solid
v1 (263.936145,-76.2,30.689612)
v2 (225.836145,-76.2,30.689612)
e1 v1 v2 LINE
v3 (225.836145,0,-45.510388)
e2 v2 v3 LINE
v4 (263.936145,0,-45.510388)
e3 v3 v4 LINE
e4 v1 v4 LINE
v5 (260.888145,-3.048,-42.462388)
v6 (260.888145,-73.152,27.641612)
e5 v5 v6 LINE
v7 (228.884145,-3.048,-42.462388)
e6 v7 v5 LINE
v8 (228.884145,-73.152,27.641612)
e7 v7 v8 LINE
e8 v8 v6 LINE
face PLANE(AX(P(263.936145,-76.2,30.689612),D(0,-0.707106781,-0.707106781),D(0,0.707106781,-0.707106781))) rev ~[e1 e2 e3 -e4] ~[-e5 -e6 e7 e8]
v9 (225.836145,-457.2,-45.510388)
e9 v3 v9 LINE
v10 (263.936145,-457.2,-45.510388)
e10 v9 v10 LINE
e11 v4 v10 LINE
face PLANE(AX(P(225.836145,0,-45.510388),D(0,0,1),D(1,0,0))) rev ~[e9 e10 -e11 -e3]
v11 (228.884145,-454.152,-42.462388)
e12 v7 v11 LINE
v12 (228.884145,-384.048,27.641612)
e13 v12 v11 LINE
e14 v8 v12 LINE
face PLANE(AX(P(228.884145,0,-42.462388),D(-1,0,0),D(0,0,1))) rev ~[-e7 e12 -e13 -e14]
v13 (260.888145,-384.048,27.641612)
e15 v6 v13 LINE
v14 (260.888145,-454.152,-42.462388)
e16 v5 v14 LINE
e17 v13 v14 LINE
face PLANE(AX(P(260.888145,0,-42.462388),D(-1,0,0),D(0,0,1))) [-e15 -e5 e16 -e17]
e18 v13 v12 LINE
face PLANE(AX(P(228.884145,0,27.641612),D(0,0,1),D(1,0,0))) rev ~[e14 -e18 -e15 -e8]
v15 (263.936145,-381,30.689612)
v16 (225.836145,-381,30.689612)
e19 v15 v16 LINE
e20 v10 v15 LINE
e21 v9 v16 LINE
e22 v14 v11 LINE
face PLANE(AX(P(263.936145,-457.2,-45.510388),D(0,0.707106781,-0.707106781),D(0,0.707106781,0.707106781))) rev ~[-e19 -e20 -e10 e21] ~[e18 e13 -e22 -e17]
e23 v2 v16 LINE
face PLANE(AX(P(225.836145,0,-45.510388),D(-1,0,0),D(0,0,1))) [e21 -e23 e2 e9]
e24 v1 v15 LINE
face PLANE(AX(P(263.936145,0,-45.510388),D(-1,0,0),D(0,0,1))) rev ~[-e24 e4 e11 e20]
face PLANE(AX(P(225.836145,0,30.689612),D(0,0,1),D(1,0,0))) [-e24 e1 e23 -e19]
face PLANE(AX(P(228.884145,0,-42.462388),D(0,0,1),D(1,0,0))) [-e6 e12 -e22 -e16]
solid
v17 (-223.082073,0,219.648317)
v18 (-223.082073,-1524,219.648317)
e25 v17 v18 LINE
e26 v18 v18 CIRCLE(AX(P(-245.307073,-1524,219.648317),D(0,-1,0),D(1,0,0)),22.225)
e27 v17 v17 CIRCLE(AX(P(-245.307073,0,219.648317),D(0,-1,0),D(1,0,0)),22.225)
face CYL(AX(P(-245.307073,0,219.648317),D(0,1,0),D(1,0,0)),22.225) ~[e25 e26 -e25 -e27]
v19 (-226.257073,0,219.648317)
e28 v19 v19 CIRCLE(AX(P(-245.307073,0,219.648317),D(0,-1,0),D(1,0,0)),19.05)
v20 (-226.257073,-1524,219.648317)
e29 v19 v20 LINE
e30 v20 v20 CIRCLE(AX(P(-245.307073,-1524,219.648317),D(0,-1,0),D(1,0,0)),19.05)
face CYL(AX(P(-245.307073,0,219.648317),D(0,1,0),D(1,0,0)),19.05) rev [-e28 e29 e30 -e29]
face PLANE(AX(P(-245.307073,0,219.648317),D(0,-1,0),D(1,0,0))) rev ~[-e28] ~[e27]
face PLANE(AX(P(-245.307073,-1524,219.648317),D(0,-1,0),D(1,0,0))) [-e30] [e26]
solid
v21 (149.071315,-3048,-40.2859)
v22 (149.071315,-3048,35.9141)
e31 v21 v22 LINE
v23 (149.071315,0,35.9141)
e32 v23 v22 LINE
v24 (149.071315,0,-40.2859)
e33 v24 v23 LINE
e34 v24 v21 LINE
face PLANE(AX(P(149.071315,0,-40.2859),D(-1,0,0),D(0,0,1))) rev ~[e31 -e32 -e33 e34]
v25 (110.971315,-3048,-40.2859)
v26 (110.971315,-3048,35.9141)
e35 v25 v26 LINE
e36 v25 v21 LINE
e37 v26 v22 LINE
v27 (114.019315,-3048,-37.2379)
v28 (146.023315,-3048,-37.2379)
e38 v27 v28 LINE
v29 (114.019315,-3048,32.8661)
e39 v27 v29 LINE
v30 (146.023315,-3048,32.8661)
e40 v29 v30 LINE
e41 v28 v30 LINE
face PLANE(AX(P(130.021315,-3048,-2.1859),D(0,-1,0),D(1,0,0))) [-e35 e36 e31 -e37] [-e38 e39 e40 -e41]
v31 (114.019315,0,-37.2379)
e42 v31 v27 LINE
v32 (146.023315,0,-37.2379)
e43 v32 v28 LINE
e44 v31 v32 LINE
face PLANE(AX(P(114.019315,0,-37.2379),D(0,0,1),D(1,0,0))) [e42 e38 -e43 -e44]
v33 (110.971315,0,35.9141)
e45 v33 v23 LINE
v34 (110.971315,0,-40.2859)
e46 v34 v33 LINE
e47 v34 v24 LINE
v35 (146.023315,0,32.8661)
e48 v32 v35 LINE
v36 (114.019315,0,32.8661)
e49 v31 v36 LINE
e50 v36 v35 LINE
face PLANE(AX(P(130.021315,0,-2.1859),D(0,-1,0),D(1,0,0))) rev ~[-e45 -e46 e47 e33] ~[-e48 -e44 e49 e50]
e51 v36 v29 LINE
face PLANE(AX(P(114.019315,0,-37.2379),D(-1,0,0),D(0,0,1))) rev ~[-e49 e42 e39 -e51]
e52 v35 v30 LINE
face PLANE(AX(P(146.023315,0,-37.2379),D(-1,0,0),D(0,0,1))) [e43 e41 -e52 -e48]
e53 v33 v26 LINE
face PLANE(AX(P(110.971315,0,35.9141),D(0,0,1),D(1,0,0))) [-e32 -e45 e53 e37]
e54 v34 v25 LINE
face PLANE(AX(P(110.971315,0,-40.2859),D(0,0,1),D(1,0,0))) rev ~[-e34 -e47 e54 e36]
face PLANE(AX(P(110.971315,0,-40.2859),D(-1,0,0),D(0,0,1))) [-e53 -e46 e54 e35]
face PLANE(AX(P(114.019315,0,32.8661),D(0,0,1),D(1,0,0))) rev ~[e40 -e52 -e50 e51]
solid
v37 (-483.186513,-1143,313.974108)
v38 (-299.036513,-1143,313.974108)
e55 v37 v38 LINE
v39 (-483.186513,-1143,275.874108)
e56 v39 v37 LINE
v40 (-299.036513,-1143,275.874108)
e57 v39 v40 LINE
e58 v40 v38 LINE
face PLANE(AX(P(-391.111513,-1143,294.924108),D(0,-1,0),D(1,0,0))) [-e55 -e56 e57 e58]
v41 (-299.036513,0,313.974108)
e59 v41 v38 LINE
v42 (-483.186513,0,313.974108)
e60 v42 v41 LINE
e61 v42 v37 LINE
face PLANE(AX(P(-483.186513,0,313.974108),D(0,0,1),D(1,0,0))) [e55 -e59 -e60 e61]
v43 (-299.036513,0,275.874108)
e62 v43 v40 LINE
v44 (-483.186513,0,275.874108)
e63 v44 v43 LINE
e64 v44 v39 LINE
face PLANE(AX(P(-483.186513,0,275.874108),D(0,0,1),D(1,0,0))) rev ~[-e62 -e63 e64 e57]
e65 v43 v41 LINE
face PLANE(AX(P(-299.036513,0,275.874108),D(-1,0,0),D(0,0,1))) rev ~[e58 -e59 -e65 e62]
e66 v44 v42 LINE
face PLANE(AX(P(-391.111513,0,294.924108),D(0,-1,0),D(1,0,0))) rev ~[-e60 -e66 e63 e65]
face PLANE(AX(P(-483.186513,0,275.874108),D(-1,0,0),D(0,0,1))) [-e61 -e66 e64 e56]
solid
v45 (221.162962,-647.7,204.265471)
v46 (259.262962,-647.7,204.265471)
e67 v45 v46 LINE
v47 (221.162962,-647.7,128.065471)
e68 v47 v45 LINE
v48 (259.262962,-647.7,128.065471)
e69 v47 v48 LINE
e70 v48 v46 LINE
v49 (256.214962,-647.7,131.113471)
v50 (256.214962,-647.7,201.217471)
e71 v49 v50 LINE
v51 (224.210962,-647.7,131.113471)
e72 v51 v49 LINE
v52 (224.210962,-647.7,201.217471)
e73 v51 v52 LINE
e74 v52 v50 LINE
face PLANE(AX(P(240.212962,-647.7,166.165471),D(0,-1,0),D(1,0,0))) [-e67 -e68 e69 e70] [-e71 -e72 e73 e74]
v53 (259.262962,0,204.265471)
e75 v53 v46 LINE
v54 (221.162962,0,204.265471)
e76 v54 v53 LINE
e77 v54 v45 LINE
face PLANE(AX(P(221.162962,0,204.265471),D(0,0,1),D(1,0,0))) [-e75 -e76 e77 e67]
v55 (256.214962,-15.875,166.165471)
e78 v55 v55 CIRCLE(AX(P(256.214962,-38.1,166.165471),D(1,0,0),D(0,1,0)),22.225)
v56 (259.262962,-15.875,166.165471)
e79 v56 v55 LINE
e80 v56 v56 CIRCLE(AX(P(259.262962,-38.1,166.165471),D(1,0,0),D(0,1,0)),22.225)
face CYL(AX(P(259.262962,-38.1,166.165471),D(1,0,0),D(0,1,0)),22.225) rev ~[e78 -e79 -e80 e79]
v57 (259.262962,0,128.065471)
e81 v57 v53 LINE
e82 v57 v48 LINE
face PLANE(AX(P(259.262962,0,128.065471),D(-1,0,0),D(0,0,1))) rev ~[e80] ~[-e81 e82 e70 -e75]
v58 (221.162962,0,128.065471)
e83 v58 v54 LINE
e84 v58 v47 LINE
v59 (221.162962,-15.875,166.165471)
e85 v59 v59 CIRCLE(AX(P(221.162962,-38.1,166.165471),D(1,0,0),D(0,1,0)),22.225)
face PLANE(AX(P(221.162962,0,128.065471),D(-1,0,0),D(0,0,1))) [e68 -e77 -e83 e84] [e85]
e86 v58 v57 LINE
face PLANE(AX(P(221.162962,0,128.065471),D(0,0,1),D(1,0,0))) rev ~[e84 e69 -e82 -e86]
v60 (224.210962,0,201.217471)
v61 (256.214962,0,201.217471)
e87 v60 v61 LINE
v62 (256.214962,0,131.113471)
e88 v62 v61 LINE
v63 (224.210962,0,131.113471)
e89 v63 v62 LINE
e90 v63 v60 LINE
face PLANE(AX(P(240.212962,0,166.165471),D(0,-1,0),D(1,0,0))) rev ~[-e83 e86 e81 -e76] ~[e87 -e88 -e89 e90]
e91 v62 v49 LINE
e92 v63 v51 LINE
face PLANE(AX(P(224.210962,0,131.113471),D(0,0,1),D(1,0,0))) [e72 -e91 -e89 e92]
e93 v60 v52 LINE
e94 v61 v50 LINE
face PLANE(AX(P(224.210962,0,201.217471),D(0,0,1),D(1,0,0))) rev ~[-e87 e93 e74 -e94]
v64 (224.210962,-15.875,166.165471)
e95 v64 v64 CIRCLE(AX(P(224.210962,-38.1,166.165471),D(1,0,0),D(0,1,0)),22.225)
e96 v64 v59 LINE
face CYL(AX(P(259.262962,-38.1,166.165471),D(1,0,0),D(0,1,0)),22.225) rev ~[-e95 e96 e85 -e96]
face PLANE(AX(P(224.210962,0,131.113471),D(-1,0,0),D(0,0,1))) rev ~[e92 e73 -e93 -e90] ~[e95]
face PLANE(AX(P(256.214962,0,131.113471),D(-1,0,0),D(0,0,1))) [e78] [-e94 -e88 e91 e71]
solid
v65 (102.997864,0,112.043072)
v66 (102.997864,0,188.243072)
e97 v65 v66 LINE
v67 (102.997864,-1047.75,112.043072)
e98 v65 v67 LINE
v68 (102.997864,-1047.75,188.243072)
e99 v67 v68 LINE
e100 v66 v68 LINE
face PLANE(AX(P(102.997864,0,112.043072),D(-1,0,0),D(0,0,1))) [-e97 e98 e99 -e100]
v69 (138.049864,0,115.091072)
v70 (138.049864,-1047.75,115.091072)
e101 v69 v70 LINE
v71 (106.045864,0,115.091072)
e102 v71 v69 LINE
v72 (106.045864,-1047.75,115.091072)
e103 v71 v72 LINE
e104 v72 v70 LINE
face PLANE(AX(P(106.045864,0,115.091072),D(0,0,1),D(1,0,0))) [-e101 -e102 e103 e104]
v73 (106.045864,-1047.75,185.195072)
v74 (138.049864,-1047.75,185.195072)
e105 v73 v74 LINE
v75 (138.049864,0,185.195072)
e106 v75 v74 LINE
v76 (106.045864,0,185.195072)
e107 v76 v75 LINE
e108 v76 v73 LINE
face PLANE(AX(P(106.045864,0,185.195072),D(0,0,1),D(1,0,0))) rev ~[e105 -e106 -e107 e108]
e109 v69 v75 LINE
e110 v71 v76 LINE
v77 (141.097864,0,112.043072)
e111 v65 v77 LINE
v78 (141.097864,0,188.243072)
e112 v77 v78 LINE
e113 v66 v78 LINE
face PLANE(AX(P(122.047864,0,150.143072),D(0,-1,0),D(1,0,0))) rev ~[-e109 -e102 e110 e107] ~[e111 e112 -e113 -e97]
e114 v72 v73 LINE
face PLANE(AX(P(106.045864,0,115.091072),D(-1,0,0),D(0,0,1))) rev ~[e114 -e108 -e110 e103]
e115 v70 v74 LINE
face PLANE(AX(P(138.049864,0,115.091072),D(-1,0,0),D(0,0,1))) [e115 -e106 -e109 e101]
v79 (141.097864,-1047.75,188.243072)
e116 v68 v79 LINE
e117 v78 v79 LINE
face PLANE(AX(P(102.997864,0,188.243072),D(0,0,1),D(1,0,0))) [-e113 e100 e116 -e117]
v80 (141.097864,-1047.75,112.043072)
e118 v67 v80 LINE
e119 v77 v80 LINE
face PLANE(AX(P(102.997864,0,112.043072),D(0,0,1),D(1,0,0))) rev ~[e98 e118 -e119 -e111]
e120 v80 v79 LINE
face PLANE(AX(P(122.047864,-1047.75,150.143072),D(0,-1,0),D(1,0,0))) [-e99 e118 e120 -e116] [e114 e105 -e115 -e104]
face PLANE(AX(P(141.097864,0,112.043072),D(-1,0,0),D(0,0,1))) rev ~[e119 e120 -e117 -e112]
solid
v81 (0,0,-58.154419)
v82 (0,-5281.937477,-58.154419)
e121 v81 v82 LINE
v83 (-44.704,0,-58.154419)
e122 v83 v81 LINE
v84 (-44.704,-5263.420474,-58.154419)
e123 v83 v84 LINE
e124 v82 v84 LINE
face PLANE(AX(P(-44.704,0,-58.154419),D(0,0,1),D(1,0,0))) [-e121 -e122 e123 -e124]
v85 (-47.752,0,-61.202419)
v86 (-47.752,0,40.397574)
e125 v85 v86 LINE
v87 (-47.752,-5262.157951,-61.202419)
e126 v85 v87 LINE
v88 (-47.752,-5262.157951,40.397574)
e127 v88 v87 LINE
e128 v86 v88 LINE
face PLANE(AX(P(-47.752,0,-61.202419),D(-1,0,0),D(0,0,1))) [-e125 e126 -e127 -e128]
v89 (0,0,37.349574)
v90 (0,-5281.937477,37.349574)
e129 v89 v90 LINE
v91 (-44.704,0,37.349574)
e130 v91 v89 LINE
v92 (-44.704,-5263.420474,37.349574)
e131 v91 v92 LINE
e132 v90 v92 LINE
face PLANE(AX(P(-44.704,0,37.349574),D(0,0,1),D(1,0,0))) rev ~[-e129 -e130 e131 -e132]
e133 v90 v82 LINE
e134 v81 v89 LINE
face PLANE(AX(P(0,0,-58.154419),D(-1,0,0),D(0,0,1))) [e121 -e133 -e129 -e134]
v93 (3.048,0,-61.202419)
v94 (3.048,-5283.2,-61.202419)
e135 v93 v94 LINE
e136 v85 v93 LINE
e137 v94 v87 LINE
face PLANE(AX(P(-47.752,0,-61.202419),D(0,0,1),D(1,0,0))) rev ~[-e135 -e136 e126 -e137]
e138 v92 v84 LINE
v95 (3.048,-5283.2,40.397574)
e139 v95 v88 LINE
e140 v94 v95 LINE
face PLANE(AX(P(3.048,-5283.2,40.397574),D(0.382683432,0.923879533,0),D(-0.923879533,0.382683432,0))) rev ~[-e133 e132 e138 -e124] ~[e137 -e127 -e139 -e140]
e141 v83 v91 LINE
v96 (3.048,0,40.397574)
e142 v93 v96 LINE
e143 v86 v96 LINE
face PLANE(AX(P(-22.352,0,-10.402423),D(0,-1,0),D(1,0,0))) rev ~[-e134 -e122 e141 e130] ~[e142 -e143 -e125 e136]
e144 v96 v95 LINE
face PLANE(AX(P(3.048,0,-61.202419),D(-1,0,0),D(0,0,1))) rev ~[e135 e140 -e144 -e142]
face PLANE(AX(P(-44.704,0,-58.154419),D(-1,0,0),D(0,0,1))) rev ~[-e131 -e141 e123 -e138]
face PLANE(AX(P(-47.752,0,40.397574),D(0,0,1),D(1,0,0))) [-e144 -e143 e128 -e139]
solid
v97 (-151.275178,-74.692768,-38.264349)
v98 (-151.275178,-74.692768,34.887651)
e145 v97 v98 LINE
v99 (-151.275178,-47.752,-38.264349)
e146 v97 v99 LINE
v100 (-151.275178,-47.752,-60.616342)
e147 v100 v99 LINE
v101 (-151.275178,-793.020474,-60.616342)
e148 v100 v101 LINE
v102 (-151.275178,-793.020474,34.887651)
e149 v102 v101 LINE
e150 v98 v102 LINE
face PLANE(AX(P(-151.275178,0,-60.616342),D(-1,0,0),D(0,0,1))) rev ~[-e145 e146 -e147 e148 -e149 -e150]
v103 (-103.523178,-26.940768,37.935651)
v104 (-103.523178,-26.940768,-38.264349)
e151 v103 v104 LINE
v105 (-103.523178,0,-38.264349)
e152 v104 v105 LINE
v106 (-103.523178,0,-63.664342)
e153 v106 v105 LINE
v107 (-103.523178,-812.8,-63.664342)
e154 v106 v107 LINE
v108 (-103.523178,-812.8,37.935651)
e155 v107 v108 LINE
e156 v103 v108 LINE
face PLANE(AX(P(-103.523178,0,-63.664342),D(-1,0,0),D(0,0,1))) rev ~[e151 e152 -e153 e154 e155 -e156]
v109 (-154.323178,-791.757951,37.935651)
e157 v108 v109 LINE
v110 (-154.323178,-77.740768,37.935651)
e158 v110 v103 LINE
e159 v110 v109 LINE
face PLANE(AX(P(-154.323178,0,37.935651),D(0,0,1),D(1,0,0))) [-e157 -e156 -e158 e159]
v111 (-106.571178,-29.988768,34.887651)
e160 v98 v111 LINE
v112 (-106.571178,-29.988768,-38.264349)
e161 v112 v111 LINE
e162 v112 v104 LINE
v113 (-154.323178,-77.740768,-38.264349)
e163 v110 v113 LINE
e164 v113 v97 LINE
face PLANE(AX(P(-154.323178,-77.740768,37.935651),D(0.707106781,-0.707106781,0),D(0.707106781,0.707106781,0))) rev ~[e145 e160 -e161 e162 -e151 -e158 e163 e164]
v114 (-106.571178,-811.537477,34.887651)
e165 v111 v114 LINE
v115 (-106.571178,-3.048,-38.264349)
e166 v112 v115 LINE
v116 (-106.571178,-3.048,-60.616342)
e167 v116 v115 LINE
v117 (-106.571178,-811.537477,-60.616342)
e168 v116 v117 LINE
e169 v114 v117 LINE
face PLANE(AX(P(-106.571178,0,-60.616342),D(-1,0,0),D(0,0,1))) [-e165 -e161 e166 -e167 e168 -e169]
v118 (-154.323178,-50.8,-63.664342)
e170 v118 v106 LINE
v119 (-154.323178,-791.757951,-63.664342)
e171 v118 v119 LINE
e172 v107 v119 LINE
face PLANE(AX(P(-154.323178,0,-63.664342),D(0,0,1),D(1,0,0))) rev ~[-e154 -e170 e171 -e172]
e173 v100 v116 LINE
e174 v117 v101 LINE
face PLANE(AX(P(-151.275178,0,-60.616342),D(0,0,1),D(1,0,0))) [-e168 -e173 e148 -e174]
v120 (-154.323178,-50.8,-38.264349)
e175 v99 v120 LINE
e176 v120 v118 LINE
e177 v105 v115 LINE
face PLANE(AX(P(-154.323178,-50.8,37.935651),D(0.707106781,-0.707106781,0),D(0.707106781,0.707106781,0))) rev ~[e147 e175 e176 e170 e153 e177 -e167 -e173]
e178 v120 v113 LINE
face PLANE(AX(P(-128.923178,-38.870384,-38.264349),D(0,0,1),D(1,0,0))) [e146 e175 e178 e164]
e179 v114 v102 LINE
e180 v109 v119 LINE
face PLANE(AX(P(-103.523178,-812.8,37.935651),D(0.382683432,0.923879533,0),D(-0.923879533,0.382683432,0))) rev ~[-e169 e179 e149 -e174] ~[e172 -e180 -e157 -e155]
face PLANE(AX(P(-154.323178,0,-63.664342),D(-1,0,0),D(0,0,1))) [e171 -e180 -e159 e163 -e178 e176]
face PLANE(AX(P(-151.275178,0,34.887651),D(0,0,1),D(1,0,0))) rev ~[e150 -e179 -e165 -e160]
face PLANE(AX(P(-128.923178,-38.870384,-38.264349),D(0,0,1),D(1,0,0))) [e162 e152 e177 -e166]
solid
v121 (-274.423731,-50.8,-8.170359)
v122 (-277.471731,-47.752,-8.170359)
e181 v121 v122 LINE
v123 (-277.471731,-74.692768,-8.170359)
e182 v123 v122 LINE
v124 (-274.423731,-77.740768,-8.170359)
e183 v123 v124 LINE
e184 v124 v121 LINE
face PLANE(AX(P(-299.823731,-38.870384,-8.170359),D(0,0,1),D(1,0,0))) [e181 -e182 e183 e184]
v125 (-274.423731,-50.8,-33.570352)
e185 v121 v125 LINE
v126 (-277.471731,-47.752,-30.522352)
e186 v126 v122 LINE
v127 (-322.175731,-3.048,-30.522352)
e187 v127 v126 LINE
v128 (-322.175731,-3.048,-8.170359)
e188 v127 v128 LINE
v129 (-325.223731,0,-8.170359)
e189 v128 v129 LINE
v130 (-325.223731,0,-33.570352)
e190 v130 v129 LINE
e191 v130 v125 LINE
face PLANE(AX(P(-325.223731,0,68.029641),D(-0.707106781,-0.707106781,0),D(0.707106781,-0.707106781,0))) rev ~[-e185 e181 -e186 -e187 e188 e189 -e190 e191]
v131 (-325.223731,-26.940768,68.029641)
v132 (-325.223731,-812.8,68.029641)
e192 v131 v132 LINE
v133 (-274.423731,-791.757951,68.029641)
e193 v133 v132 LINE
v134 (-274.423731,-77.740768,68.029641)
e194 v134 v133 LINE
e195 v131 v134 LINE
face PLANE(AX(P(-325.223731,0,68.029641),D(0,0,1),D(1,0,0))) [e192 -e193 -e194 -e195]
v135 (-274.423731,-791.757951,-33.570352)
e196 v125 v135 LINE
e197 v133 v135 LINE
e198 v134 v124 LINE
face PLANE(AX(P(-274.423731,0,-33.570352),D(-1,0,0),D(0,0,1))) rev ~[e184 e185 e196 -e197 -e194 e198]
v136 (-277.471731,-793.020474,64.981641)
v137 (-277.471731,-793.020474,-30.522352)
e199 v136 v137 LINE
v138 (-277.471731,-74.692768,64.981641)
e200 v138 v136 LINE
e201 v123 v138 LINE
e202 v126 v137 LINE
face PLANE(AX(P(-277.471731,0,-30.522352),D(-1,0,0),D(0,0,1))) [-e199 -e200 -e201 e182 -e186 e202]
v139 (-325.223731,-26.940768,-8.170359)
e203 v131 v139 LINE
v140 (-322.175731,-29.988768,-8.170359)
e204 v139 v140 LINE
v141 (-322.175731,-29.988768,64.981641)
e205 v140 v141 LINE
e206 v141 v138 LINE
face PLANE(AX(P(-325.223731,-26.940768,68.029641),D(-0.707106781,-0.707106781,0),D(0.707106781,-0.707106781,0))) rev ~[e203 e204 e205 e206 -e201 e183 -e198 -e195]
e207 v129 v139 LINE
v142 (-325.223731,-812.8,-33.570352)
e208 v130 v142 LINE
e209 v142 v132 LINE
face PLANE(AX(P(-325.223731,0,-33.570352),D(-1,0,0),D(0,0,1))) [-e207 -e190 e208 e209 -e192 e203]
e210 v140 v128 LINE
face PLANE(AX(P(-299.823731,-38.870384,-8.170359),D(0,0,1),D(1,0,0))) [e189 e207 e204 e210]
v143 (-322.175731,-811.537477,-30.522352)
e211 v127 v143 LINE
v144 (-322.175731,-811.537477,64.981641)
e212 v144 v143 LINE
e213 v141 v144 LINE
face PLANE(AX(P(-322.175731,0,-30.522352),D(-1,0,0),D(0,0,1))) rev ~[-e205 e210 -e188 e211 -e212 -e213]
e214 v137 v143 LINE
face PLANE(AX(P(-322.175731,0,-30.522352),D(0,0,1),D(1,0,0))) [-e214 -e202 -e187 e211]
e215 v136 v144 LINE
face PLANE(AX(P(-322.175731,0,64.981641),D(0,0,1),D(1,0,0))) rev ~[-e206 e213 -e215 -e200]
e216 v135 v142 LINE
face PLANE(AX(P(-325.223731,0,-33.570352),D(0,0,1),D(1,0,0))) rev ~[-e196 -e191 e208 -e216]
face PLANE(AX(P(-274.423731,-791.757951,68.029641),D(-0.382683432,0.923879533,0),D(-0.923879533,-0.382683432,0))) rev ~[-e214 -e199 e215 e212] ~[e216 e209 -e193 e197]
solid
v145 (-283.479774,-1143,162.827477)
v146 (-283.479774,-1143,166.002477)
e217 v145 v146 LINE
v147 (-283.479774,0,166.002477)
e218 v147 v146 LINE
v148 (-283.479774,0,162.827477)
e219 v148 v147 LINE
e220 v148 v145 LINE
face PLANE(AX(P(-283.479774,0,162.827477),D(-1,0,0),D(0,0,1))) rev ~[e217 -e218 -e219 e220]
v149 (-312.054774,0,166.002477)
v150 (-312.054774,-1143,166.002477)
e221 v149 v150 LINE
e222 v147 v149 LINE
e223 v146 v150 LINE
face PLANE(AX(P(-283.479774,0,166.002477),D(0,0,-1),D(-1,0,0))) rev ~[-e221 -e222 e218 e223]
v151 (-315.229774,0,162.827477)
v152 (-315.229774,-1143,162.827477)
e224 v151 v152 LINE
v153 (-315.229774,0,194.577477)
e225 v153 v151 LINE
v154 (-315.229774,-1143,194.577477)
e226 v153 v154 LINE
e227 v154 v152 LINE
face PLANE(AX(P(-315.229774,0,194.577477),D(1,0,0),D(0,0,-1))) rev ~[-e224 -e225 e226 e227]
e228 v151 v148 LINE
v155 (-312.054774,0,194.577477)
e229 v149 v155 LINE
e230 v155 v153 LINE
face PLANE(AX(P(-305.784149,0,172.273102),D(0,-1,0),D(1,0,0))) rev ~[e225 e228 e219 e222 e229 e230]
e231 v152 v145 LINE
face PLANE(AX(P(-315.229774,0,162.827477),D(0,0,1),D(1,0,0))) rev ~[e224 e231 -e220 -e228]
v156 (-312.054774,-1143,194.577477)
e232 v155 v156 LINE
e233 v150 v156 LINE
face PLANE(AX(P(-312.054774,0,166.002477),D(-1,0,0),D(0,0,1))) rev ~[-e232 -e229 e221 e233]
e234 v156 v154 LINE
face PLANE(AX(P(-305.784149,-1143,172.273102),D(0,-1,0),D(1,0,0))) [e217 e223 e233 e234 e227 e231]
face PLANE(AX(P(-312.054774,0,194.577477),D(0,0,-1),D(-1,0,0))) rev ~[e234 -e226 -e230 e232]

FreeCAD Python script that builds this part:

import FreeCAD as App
import Part
import Sketcher
from FreeCAD import Vector
Q = App.Units.Quantity

doc = App.newDocument("Part")
body = doc.addObject("PartDesign::Body", "Body")

sketch1 = doc.addObject("Sketcher::SketchObject", "Sketch")
body.addObject(sketch1)
sketch1.AttachmentSupport = (doc.XZ_Plane, [""])
sketch1.MapMode = "FlatFace"
sketch1.addGeometry([
    Part.LineSegment(Vector(-483, 314, 0), Vector(-483, 276, 0)),
    Part.LineSegment(Vector(-483, 276, 0), Vector(-299, 276, 0)),
    Part.LineSegment(Vector(-299, 276, 0), Vector(-299, 314, 0)),
    Part.LineSegment(Vector(-299, 314, 0), Vector(-483, 314, 0)),
], False)
sketch1.addConstraint([
    Sketcher.Constraint("Coincident", 0, 2, 1, 1),
    Sketcher.Constraint("Coincident", 1, 2, 2, 1),
    Sketcher.Constraint("Coincident", 2, 2, 3, 1),
    Sketcher.Constraint("Coincident", 3, 2, 0, 1),
    Sketcher.Constraint("Vertical", 0),
    Sketcher.Constraint("Horizontal", 1),
    Sketcher.Constraint("Vertical", 2),
    Sketcher.Constraint("Horizontal", 3),
    Sketcher.Constraint("DistanceY", 0, 2, 0, 1, Q("1.5 in")),
    Sketcher.Constraint("DistanceX", 1, 1, 1, 2, Q("7.25 in")),
    Sketcher.Constraint("DistanceY", -1, 1, 0, 2, 275.874108),
    Sketcher.Constraint("DistanceX", 0, 2, -1, 1, 483.186513),
])
pad1 = doc.addObject("PartDesign::Pad", "Pad")
body.addObject(pad1)
pad1.Profile = sketch1
pad1.Length = Q("45 in")
body2 = doc.addObject("PartDesign::Body", "Body001")

sketch2 = doc.addObject("Sketcher::SketchObject", "Sketch001")
body2.addObject(sketch2)
sketch2.AttachmentSupport = (doc.getObject("XZ_Plane001"), [""])
sketch2.MapMode = "FlatFace"
sketch2.addGeometry([
    Part.Circle(Vector(-245, 220, 0), Vector(0, 0, 1), 22),
    Part.Circle(Vector(-245, 220, 0), Vector(0, 0, 1), 19),
], False)
sketch2.addConstraint([
    Sketcher.Constraint("Coincident", 1, 3, 0, 3),
    Sketcher.Constraint("Diameter", 1, Q("1.5 in")),
    Sketcher.Constraint("Diameter", 0, Q("1.75 in")),
    Sketcher.Constraint("DistanceX", 0, 3, -1, 1, 245.307073),
    Sketcher.Constraint("DistanceY", -1, 1, 0, 3, 219.648317),
])
pad2 = doc.addObject("PartDesign::Pad", "Pad001")
body2.addObject(pad2)
pad2.Profile = sketch2
pad2.Length = Q("60 in")
body3 = doc.addObject("PartDesign::Body", "Body002")

sketch3 = doc.addObject("Sketcher::SketchObject", "Sketch002")
body3.addObject(sketch3)
sketch3.AttachmentSupport = (doc.getObject("XZ_Plane002"), [""])
sketch3.MapMode = "FlatFace"
sketch3.addGeometry([
    Part.LineSegment(Vector(-312.1, 194.6, 0), Vector(-315.2, 194.6, 0)),
    Part.LineSegment(Vector(-315.2, 194.6, 0), Vector(-315.2, 162.8, 0)),
    Part.LineSegment(Vector(-315.2, 162.8, 0), Vector(-283.5, 162.8, 0)),
    Part.LineSegment(Vector(-283.5, 162.8, 0), Vector(-283.5, 166, 0)),
    Part.LineSegment(Vector(-283.5, 166, 0), Vector(-312.1, 166, 0)),
    Part.LineSegment(Vector(-312.1, 166, 0), Vector(-312.1, 194.6, 0)),
], False)
sketch3.addConstraint([
    Sketcher.Constraint("Coincident", 0, 2, 1, 1),
    Sketcher.Constraint("Coincident", 1, 2, 2, 1),
    Sketcher.Constraint("Coincident", 2, 2, 3, 1),
    Sketcher.Constraint("Coincident", 3, 2, 4, 1),
    Sketcher.Constraint("Coincident", 4, 2, 5, 1),
    Sketcher.Constraint("Coincident", 5, 2, 0, 1),
    Sketcher.Constraint("Horizontal", 0),
    Sketcher.Constraint("Vertical", 1),
    Sketcher.Constraint("Horizontal", 2),
    Sketcher.Constraint("Vertical", 3),
    Sketcher.Constraint("Horizontal", 4),
    Sketcher.Constraint("Vertical", 5),
    Sketcher.Constraint("Equal", 2, 1),
    Sketcher.Constraint("Equal", 0, 3),
    Sketcher.Constraint("DistanceX", 2, 1, 2, 2, Q("1.25 in")),
    Sketcher.Constraint("DistanceX", 0, 2, 0, 1, Q("0.125 in")),
    Sketcher.Constraint("DistanceX", 0, 2, -1, 1, 315.229774),
    Sketcher.Constraint("DistanceY", -1, 1, 0, 2, 194.577477),
])
pad3 = doc.addObject("PartDesign::Pad", "Pad002")
body3.addObject(pad3)
pad3.Profile = sketch3
pad3.Length = Q("45 in")
body4 = doc.addObject("PartDesign::Body", "Body003")

sketch4 = doc.addObject("Sketcher::SketchObject", "Sketch003")
body4.addObject(sketch4)
sketch4.AttachmentSupport = (doc.getObject("XZ_Plane003"), [""])
sketch4.MapMode = "FlatFace"
sketch4.addGeometry([
    Part.LineSegment(Vector(-154, 38, 0), Vector(-154, -64, 0)),
    Part.LineSegment(Vector(-154, -64, 0), Vector(-104, -64, 0)),
    Part.LineSegment(Vector(-104, -64, 0), Vector(-104, 38, 0)),
    Part.LineSegment(Vector(-104, 38, 0), Vector(-154, 38, 0)),
    Part.LineSegment(Vector(-107, -61, 0), Vector(-151, -61, 0)),
    Part.LineSegment(Vector(-151, -61, 0), Vector(-151, 35, 0)),
    Part.LineSegment(Vector(-151, 35, 0), Vector(-107, 35, 0)),
    Part.LineSegment(Vector(-107, 35, 0), Vector(-107, -61, 0)),
], False)
sketch4.addConstraint([
    Sketcher.Constraint("Coincident", 0, 2, 1, 1),
    Sketcher.Constraint("Coincident", 1, 2, 2, 1),
    Sketcher.Constraint("Coincident", 2, 2, 3, 1),
    Sketcher.Constraint("Coincident", 3, 2, 0, 1),
    Sketcher.Constraint("Coincident", 4, 2, 5, 1),
    Sketcher.Constraint("Coincident", 5, 2, 6, 1),
    Sketcher.Constraint("Coincident", 6, 2, 7, 1),
    Sketcher.Constraint("Coincident", 7, 2, 4, 1),
    Sketcher.Constraint("Vertical", 0),
    Sketcher.Constraint("Horizontal", 1),
    Sketcher.Constraint("Vertical", 2),
    Sketcher.Constraint("Horizontal", 3),
    Sketcher.Constraint("Horizontal", 4),
    Sketcher.Constraint("Vertical", 5),
    Sketcher.Constraint("Horizontal", 6),
    Sketcher.Constraint("Vertical", 7),
    Sketcher.Constraint("DistanceX", 1, 1, 1, 2, Q("2 in")),
    Sketcher.Constraint("DistanceX", 4, 2, 4, 1, Q("1.76 in")),
    Sketcher.Constraint("DistanceX", 0, 2, 4, 2, Q("0.12 in")),
    Sketcher.Constraint("DistanceY", 0, 2, 4, 2, Q("0.12 in")),
    Sketcher.Constraint("DistanceY", 5, 2, 3, 2, Q("0.12 in")),
    Sketcher.Constraint("DistanceY", 0, 2, 0, 1, 101.599993),
    Sketcher.Constraint("DistanceY", -1, 1, 2, 2, 37.935651),
    Sketcher.Constraint("DistanceX", 0, 2, -1, 1, 154.323178),
])
pad4 = doc.addObject("PartDesign::Pad", "Pad003")
body4.addObject(pad4)
pad4.Profile = sketch4
pad4.Length = Q("32 in")

sketch5 = doc.addObject("Sketcher::SketchObject", "Sketch004")
body4.addObject(sketch5)
sketch5.AttachmentSupport = (doc.getObject("XY_Plane003"), [""])
sketch5.MapMode = "FlatFace"
sketch5.AttachmentOffset = App.Placement(Vector(0, 0, 37.935651), App.Rotation())
sketch5.addGeometry([
    Part.LineSegment(Vector(-154, -51, 0), Vector(-104, 0, 0)),
    Part.LineSegment(Vector(-104, 0, 0), Vector(-154, 0, 0)),
    Part.LineSegment(Vector(-154, 0, 0), Vector(-154, -51, 0)),
], False)
sketch5.addConstraint([
    Sketcher.Constraint("Coincident", 0, 2, 1, 1),
    Sketcher.Constraint("Coincident", 1, 2, 2, 1),
    Sketcher.Constraint("Coincident", 2, 2, 0, 1),
    Sketcher.Constraint("Horizontal", 1),
    Sketcher.Constraint("Vertical", 2),
    Sketcher.Constraint("PointOnObject", 0, 2, -1),
    Sketcher.Constraint("Equal", 1, 2),
    Sketcher.Constraint("DistanceX", 1, 2, 1, 1, Q("2 in")),
    Sketcher.Constraint("DistanceX", 0, 2, -1, 1, 103.523178),
])
pocket1 = doc.addObject("PartDesign::Pocket", "Pocket")
body4.addObject(pocket1)
pocket1.Profile = sketch5
pocket1.Length = Q("4 in")

sketch6 = doc.addObject("Sketcher::SketchObject", "Sketch005")
body4.addObject(sketch6)
sketch6.AttachmentSupport = (doc.getObject("XY_Plane003"), [""])
sketch6.MapMode = "FlatFace"
sketch6.AttachmentOffset = App.Placement(Vector(0, 0, 37.935651), App.Rotation())
sketch6.addGeometry([
    Part.LineSegment(Vector(-154, -78, 0), Vector(-104, -27, 0)),
    Part.LineSegment(Vector(-104, -27, 0), Vector(-104, 0, 0)),
    Part.LineSegment(Vector(-104, 0, 0), Vector(-154, -51, 0)),
    Part.LineSegment(Vector(-154, -51, 0), Vector(-154, -78, 0)),
], False)
sketch6.addConstraint([
    Sketcher.Constraint("Coincident", 0, 2, 1, 1),
    Sketcher.Constraint("Coincident", 1, 2, 2, 1),
    Sketcher.Constraint("Coincident", 2, 2, 3, 1),
    Sketcher.Constraint("Coincident", 3, 2, 0, 1),
    Sketcher.Constraint("Vertical", 1),
    Sketcher.Constraint("Vertical", 3),
    Sketcher.Constraint("PointOnObject", 1, 2, -1),
    Sketcher.Constraint("Parallel", 0, 2),
    Sketcher.Constraint("DistanceY", 2, 2, -1, 1, Q("2 in")),
    Sketcher.Constraint("Angle", 0, Q("45 deg")),
    Sketcher.Constraint("DistanceY", 1, 1, 1, 2, 26.940768),
    Sketcher.Constraint("DistanceX", 0, 2, -1, 1, 103.523178),
])
pocket2 = doc.addObject("PartDesign::Pocket", "Pocket001")
body4.addObject(pocket2)
pocket2.Profile = sketch6
pocket2.Length = Q("3 in")

sketch7 = doc.addObject("Sketcher::SketchObject", "Sketch006")
body4.addObject(sketch7)
sketch7.AttachmentSupport = (doc.getObject("XY_Plane003"), [""])
sketch7.MapMode = "FlatFace"
sketch7.AttachmentOffset = App.Placement(Vector(0, 0, 37.935651), App.Rotation())
sketch7.addGeometry([
    Part.LineSegment(Vector(-154, -813, 0), Vector(-104, -813, 0)),
    Part.LineSegment(Vector(-104, -813, 0), Vector(-154, -792, 0)),
    Part.LineSegment(Vector(-154, -792, 0), Vector(-154, -813, 0)),
], False)
sketch7.addConstraint([
    Sketcher.Constraint("Coincident", 0, 2, 1, 1),
    Sketcher.Constraint("Coincident", 1, 2, 2, 1),
    Sketcher.Constraint("Coincident", 2, 2, 0, 1),
    Sketcher.Constraint("Horizontal", 0),
    Sketcher.Constraint("Vertical", 2),
    Sketcher.Constraint("DistanceX", 0, 1, 0, 2, Q("2 in")),
    Sketcher.Constraint("DistanceY", 0, 2, -1, 1, Q("32 in")),
    Sketcher.Constraint("Angle", 1, Q("157.5 deg")),
    Sketcher.Constraint("DistanceX", 0, 2, -1, 1, 103.523178),
])
pocket3 = doc.addObject("PartDesign::Pocket", "Pocket002")
body4.addObject(pocket3)
pocket3.Profile = sketch7
pocket3.Length = Q("4 in")
body5 = doc.addObject("PartDesign::Body", "Body004")

sketch8 = doc.addObject("Sketcher::SketchObject", "Sketch007")
body5.addObject(sketch8)
sketch8.AttachmentSupport = (doc.getObject("XZ_Plane004"), [""])
sketch8.MapMode = "FlatFace"
sketch8.addGeometry([
    Part.LineSegment(Vector(-48, 40, 0), Vector(-48, -61, 0)),
    Part.LineSegment(Vector(-48, -61, 0), Vector(3, -61, 0)),
    Part.LineSegment(Vector(3, -61, 0), Vector(3, 40, 0)),
    Part.LineSegment(Vector(3, 40, 0), Vector(-48, 40, 0)),
    Part.LineSegment(Vector(0, -58, 0), Vector(-45, -58, 0)),
    Part.LineSegment(Vector(-45, -58, 0), Vector(-45, 37, 0)),
    Part.LineSegment(Vector(-45, 37, 0), Vector(0, 37, 0)),
    Part.LineSegment(Vector(0, 37, 0), Vector(0, -58, 0)),
], False)
sketch8.addConstraint([
    Sketcher.Constraint("Coincident", 0, 2, 1, 1),
    Sketcher.Constraint("Coincident", 1, 2, 2, 1),
    Sketcher.Constraint("Coincident", 2, 2, 3, 1),
    Sketcher.Constraint("Coincident", 3, 2, 0, 1),
    Sketcher.Constraint("Coincident", 4, 2, 5, 1),
    Sketcher.Constraint("Coincident", 5, 2, 6, 1),
    Sketcher.Constraint("Coincident", 6, 2, 7, 1),
    Sketcher.Constraint("Coincident", 7, 2, 4, 1),
    Sketcher.Constraint("Vertical", 0),
    Sketcher.Constraint("Horizontal", 1),
    Sketcher.Constraint("Vertical", 2),
    Sketcher.Constraint("Horizontal", 3),
    Sketcher.Constraint("Horizontal", 4),
    Sketcher.Constraint("Vertical", 5),
    Sketcher.Constraint("Horizontal", 6),
    Sketcher.Constraint("Vertical", 7),
    Sketcher.Constraint("PointOnObject", 6, 2, -2),
    Sketcher.Constraint("DistanceX", 1, 1, 1, 2, Q("2 in")),
    Sketcher.Constraint("DistanceX", 4, 2, 4, 1, Q("1.76 in")),
    Sketcher.Constraint("DistanceX", 0, 2, -1, 1, Q("1.88 in")),
    Sketcher.Constraint("DistanceY", 0, 2, 4, 2, Q("0.12 in")),
    Sketcher.Constraint("DistanceY", 5, 2, 3, 2, Q("0.12 in")),
    Sketcher.Constraint("DistanceY", 0, 2, 0, 1, 101.599993),
    Sketcher.Constraint("DistanceY", 0, 2, -1, 1, 61.202419),
])
pad5 = doc.addObject("PartDesign::Pad", "Pad004")
body5.addObject(pad5)
pad5.Profile = sketch8
pad5.Length = Q("208 in")

sketch9 = doc.addObject("Sketcher::SketchObject", "Sketch008")
body5.addObject(sketch9)
sketch9.AttachmentSupport = (doc.getObject("XY_Plane004"), [""])
sketch9.MapMode = "FlatFace"
sketch9.AttachmentOffset = App.Placement(Vector(0, 0, 40.397574), App.Rotation())
sketch9.addGeometry([
    Part.LineSegment(Vector(-48, -5283, 0), Vector(3, -5283, 0)),
    Part.LineSegment(Vector(3, -5283, 0), Vector(-48, -5262, 0)),
    Part.LineSegment(Vector(-48, -5262, 0), Vector(-48, -5283, 0)),
], False)
sketch9.addConstraint([
    Sketcher.Constraint("Coincident", 0, 2, 1, 1),
    Sketcher.Constraint("Coincident", 1, 2, 2, 1),
    Sketcher.Constraint("Coincident", 2, 2, 0, 1),
    Sketcher.Constraint("Horizontal", 0),
    Sketcher.Constraint("Vertical", 2),
    Sketcher.Constraint("DistanceX", 0, 1, 0, 2, Q("2 in")),
    Sketcher.Constraint("DistanceY", 0, 2, -1, 1, Q("208 in")),
    Sketcher.Constraint("Angle", 1, Q("157.5 deg")),
    Sketcher.Constraint("DistanceX", -1, 1, 0, 2, Q("0.12 in")),
])
pocket4 = doc.addObject("PartDesign::Pocket", "Pocket003")
body5.addObject(pocket4)
pocket4.Profile = sketch9
pocket4.Length = Q("4 in")
body6 = doc.addObject("PartDesign::Body", "Body005")

sketch10 = doc.addObject("Sketcher::SketchObject", "Sketch009")
body6.addObject(sketch10)
sketch10.AttachmentSupport = (doc.getObject("XZ_Plane005"), [""])
sketch10.MapMode = "FlatFace"
sketch10.addGeometry([
    Part.LineSegment(Vector(103, 188, 0), Vector(103, 112, 0)),
    Part.LineSegment(Vector(103, 112, 0), Vector(141, 112, 0)),
    Part.LineSegment(Vector(141, 112, 0), Vector(141, 188, 0)),
    Part.LineSegment(Vector(141, 188, 0), Vector(103, 188, 0)),
    Part.LineSegment(Vector(138, 115, 0), Vector(106, 115, 0)),
    Part.LineSegment(Vector(106, 115, 0), Vector(106, 185, 0)),
    Part.LineSegment(Vector(106, 185, 0), Vector(138, 185, 0)),
    Part.LineSegment(Vector(138, 185, 0), Vector(138, 115, 0)),
], False)
sketch10.addConstraint([
    Sketcher.Constraint("Coincident", 0, 2, 1, 1),
    Sketcher.Constraint("Coincident", 1, 2, 2, 1),
    Sketcher.Constraint("Coincident", 2, 2, 3, 1),
    Sketcher.Constraint("Coincident", 3, 2, 0, 1),
    Sketcher.Constraint("Coincident", 4, 2, 5, 1),
    Sketcher.Constraint("Coincident", 5, 2, 6, 1),
    Sketcher.Constraint("Coincident", 6, 2, 7, 1),
    Sketcher.Constraint("Coincident", 7, 2, 4, 1),
    Sketcher.Constraint("Vertical", 0),
    Sketcher.Constraint("Horizontal", 1),
    Sketcher.Constraint("Vertical", 2),
    Sketcher.Constraint("Horizontal", 3),
    Sketcher.Constraint("Horizontal", 4),
    Sketcher.Constraint("Vertical", 5),
    Sketcher.Constraint("Horizontal", 6),
    Sketcher.Constraint("Vertical", 7),
    Sketcher.Constraint("DistanceY", 0, 2, 0, 1, Q("3 in")),
    Sketcher.Constraint("DistanceX", 1, 1, 1, 2, Q("1.5 in")),
    Sketcher.Constraint("DistanceX", 4, 2, 4, 1, Q("1.26 in")),
    Sketcher.Constraint("DistanceY", 5, 1, 5, 2, Q("2.76 in")),
    Sketcher.Constraint("DistanceX", 0, 2, 4, 2, Q("0.12 in")),
    Sketcher.Constraint("DistanceY", 0, 2, 4, 2, Q("0.12 in")),
    Sketcher.Constraint("DistanceX", -1, 1, 0, 2, 102.997864),
    Sketcher.Constraint("DistanceY", -1, 1, 0, 2, 112.043072),
])
pad6 = doc.addObject("PartDesign::Pad", "Pad005")
body6.addObject(pad6)
pad6.Profile = sketch10
pad6.Length = Q("41.25 in")
body7 = doc.addObject("PartDesign::Body", "Body006")

sketch11 = doc.addObject("Sketcher::SketchObject", "Sketch010")
body7.addObject(sketch11)
sketch11.AttachmentSupport = (doc.getObject("XZ_Plane006"), [""])
sketch11.MapMode = "FlatFace"
sketch11.addGeometry([
    Part.LineSegment(Vector(111, 36, 0), Vector(111, -40, 0)),
    Part.LineSegment(Vector(111, -40, 0), Vector(149, -40, 0)),
    Part.LineSegment(Vector(149, -40, 0), Vector(149, 36, 0)),
    Part.LineSegment(Vector(149, 36, 0), Vector(111, 36, 0)),
    Part.LineSegment(Vector(146, -37, 0), Vector(114, -37, 0)),
    Part.LineSegment(Vector(114, -37, 0), Vector(114, 33, 0)),
    Part.LineSegment(Vector(114, 33, 0), Vector(146, 33, 0)),
    Part.LineSegment(Vector(146, 33, 0), Vector(146, -37, 0)),
], False)
sketch11.addConstraint([
    Sketcher.Constraint("Coincident", 0, 2, 1, 1),
    Sketcher.Constraint("Coincident", 1, 2, 2, 1),
    Sketcher.Constraint("Coincident", 2, 2, 3, 1),
    Sketcher.Constraint("Coincident", 3, 2, 0, 1),
    Sketcher.Constraint("Coincident", 4, 2, 5, 1),
    Sketcher.Constraint("Coincident", 5, 2, 6, 1),
    Sketcher.Constraint("Coincident", 6, 2, 7, 1),
    Sketcher.Constraint("Coincident", 7, 2, 4, 1),
    Sketcher.Constraint("Vertical", 0),
    Sketcher.Constraint("Horizontal", 1),
    Sketcher.Constraint("Vertical", 2),
    Sketcher.Constraint("Horizontal", 3),
    Sketcher.Constraint("Horizontal", 4),
    Sketcher.Constraint("Vertical", 5),
    Sketcher.Constraint("Horizontal", 6),
    Sketcher.Constraint("Vertical", 7),
    Sketcher.Constraint("DistanceY", 0, 2, 0, 1, Q("3 in")),
    Sketcher.Constraint("DistanceX", 1, 1, 1, 2, Q("1.5 in")),
    Sketcher.Constraint("DistanceX", 4, 2, 4, 1, Q("1.26 in")),
    Sketcher.Constraint("DistanceY", 5, 1, 5, 2, Q("2.76 in")),
    Sketcher.Constraint("DistanceX", 0, 2, 4, 2, Q("0.12 in")),
    Sketcher.Constraint("DistanceY", 0, 2, 4, 2, Q("0.12 in")),
    Sketcher.Constraint("DistanceY", 0, 2, -1, 1, 40.2859),
    Sketcher.Constraint("DistanceX", -1, 1, 0, 2, 110.971315),
])
pad7 = doc.addObject("PartDesign::Pad", "Pad006")
body7.addObject(pad7)
pad7.Profile = sketch11
pad7.Length = Q("120 in")
body8 = doc.addObject("PartDesign::Body", "Body007")

sketch12 = doc.addObject("Sketcher::SketchObject", "Sketch011")
body8.addObject(sketch12)
sketch12.AttachmentSupport = (doc.getObject("XZ_Plane007"), [""])
sketch12.MapMode = "FlatFace"
sketch12.addGeometry([
    Part.LineSegment(Vector(221, 204, 0), Vector(221, 128, 0)),
    Part.LineSegment(Vector(221, 128, 0), Vector(259, 128, 0)),
    Part.LineSegment(Vector(259, 128, 0), Vector(259, 204, 0)),
    Part.LineSegment(Vector(259, 204, 0), Vector(221, 204, 0)),
    Part.LineSegment(Vector(256, 131, 0), Vector(224, 131, 0)),
    Part.LineSegment(Vector(224, 131, 0), Vector(224, 201, 0)),
    Part.LineSegment(Vector(224, 201, 0), Vector(256, 201, 0)),
    Part.LineSegment(Vector(256, 201, 0), Vector(256, 131, 0)),
], False)
sketch12.addConstraint([
    Sketcher.Constraint("Coincident", 0, 2, 1, 1),
    Sketcher.Constraint("Coincident", 1, 2, 2, 1),
    Sketcher.Constraint("Coincident", 2, 2, 3, 1),
    Sketcher.Constraint("Coincident", 3, 2, 0, 1),
    Sketcher.Constraint("Coincident", 4, 2, 5, 1),
    Sketcher.Constraint("Coincident", 5, 2, 6, 1),
    Sketcher.Constraint("Coincident", 6, 2, 7, 1),
    Sketcher.Constraint("Coincident", 7, 2, 4, 1),
    Sketcher.Constraint("Vertical", 0),
    Sketcher.Constraint("Horizontal", 1),
    Sketcher.Constraint("Vertical", 2),
    Sketcher.Constraint("Horizontal", 3),
    Sketcher.Constraint("Horizontal", 4),
    Sketcher.Constraint("Vertical", 5),
    Sketcher.Constraint("Horizontal", 6),
    Sketcher.Constraint("Vertical", 7),
    Sketcher.Constraint("DistanceY", 0, 2, 0, 1, Q("3 in")),
    Sketcher.Constraint("DistanceX", 1, 1, 1, 2, Q("1.5 in")),
    Sketcher.Constraint("DistanceX", 4, 2, 4, 1, Q("1.26 in")),
    Sketcher.Constraint("DistanceY", 5, 1, 5, 2, Q("2.76 in")),
    Sketcher.Constraint("DistanceX", 0, 2, 4, 2, Q("0.12 in")),
    Sketcher.Constraint("DistanceY", 0, 2, 4, 2, Q("0.12 in")),
    Sketcher.Constraint("DistanceY", -1, 1, 0, 2, 128.065471),
    Sketcher.Constraint("DistanceX", -1, 1, 0, 2, 221.162962),
])
pad8 = doc.addObject("PartDesign::Pad", "Pad007")
body8.addObject(pad8)
pad8.Profile = sketch12
pad8.Length = Q("25.5 in")

sketch13 = doc.addObject("Sketcher::SketchObject", "Sketch012")
body8.addObject(sketch13)
sketch13.AttachmentSupport = (doc.getObject("YZ_Plane007"), [""])
sketch13.MapMode = "FlatFace"
sketch13.AttachmentOffset = App.Placement(Vector(0, 0, 259.262962), App.Rotation())
sketch13.addGeometry(Part.Circle(Vector(-38, 166, 0), Vector(0, 0, 1), 22), False)
sketch13.addConstraint([
    Sketcher.Constraint("Diameter", 0, Q("1.75 in")),
    Sketcher.Constraint("DistanceX", 0, 3, -1, 1, Q("1.5 in")),
    Sketcher.Constraint("DistanceY", -1, 1, 0, 3, 166.165471),
])
pocket5 = doc.addObject("PartDesign::Pocket", "Pocket004")
body8.addObject(pocket5)
pocket5.Profile = sketch13
pocket5.Length = Q("1.5 in")
body9 = doc.addObject("PartDesign::Body", "Body008")

sketch14 = doc.addObject("Sketcher::SketchObject", "Sketch013")
body9.addObject(sketch14)
sketch14.AttachmentSupport = (doc.getObject("XZ_Plane008"), [""])
sketch14.MapMode = "FlatFace"
sketch14.addGeometry([
    Part.LineSegment(Vector(226, 31, 0), Vector(226, -46, 0)),
    Part.LineSegment(Vector(226, -46, 0), Vector(264, -46, 0)),
    Part.LineSegment(Vector(264, -46, 0), Vector(264, 31, 0)),
    Part.LineSegment(Vector(264, 31, 0), Vector(226, 31, 0)),
    Part.LineSegment(Vector(261, -42, 0), Vector(229, -42, 0)),
    Part.LineSegment(Vector(229, -42, 0), Vector(229, 28, 0)),
    Part.LineSegment(Vector(229, 28, 0), Vector(261, 28, 0)),
    Part.LineSegment(Vector(261, 28, 0), Vector(261, -42, 0)),
], False)
sketch14.addConstraint([
    Sketcher.Constraint("Coincident", 0, 2, 1, 1),
    Sketcher.Constraint("Coincident", 1, 2, 2, 1),
    Sketcher.Constraint("Coincident", 2, 2, 3, 1),
    Sketcher.Constraint("Coincident", 3, 2, 0, 1),
    Sketcher.Constraint("Coincident", 4, 2, 5, 1),
    Sketcher.Constraint("Coincident", 5, 2, 6, 1),
    Sketcher.Constraint("Coincident", 6, 2, 7, 1),
    Sketcher.Constraint("Coincident", 7, 2, 4, 1),
    Sketcher.Constraint("Vertical", 0),
    Sketcher.Constraint("Horizontal", 1),
    Sketcher.Constraint("Vertical", 2),
    Sketcher.Constraint("Horizontal", 3),
    Sketcher.Constraint("Horizontal", 4),
    Sketcher.Constraint("Vertical", 5),
    Sketcher.Constraint("Horizontal", 6),
    Sketcher.Constraint("Vertical", 7),
    Sketcher.Constraint("DistanceY", 0, 2, 0, 1, Q("3 in")),
    Sketcher.Constraint("DistanceX", 1, 1, 1, 2, Q("1.5 in")),
    Sketcher.Constraint("DistanceX", 4, 2, 4, 1, Q("1.26 in")),
    Sketcher.Constraint("DistanceY", 5, 1, 5, 2, Q("2.76 in")),
    Sketcher.Constraint("DistanceX", 0, 2, 4, 2, Q("0.12 in")),
    Sketcher.Constraint("DistanceY", 0, 2, 4, 2, Q("0.12 in")),
    Sketcher.Constraint("DistanceX", -1, 1, 0, 2, 225.836145),
    Sketcher.Constraint("DistanceY", 0, 2, -1, 1, 45.510388),
])
pad9 = doc.addObject("PartDesign::Pad", "Pad008")
body9.addObject(pad9)
pad9.Profile = sketch14
pad9.Length = Q("18 in")

sketch15 = doc.addObject("Sketcher::SketchObject", "Sketch014")
body9.addObject(sketch15)
sketch15.AttachmentSupport = (doc.getObject("YZ_Plane008"), [""])
sketch15.MapMode = "FlatFace"
sketch15.AttachmentOffset = App.Placement(Vector(0, 0, 263.936145), App.Rotation())
sketch15.addGeometry([
    Part.LineSegment(Vector(-457, 31, 0), Vector(-457, -46, 0)),
    Part.LineSegment(Vector(-457, -46, 0), Vector(-381, 31, 0)),
    Part.LineSegment(Vector(-381, 31, 0), Vector(-457, 31, 0)),
    Part.LineSegment(Vector(-76, 31, 0), Vector(0, -46, 0)),
    Part.LineSegment(Vector(0, -46, 0), Vector(0, 31, 0)),
    Part.LineSegment(Vector(0, 31, 0), Vector(-76, 31, 0)),
], False)
sketch15.addConstraint([
    Sketcher.Constraint("Coincident", 0, 2, 1, 1),
    Sketcher.Constraint("Coincident", 1, 2, 2, 1),
    Sketcher.Constraint("Coincident", 2, 2, 0, 1),
    Sketcher.Constraint("Coincident", 3, 2, 4, 1),
    Sketcher.Constraint("Coincident", 4, 2, 5, 1),
    Sketcher.Constraint("Coincident", 5, 2, 3, 1),
    Sketcher.Constraint("Vertical", 0),
    Sketcher.Constraint("Horizontal", 2),
    Sketcher.Constraint("Vertical", 4),
    Sketcher.Constraint("Horizontal", 5),
    Sketcher.Constraint("PointOnObject", 3, 2, -2),
    Sketcher.Constraint("Perpendicular", 1, 3),
    Sketcher.Constraint("Horizontal", 0, 2, 3, 2),
    Sketcher.Constraint("Horizontal", 2, 2, 4, 2),
    Sketcher.Constraint("Equal", 2, 5),
    Sketcher.Constraint("DistanceX", 2, 2, 2, 1, Q("3 in")),
    Sketcher.Constraint("DistanceX", 0, 2, -1, 1, Q("18 in")),
    Sketcher.Constraint("DistanceY", 0, 2, -1, 1, 45.510388),
])
pocket6 = doc.addObject("PartDesign::Pocket", "Pocket005")
body9.addObject(pocket6)
pocket6.Profile = sketch15
pocket6.Length = Q("1.5 in")
body10 = doc.addObject("PartDesign::Body", "Body009")

sketch16 = doc.addObject("Sketcher::SketchObject", "Sketch015")
body10.addObject(sketch16)
sketch16.AttachmentSupport = (doc.getObject("XZ_Plane009"), [""])
sketch16.MapMode = "FlatFace"
sketch16.addGeometry([
    Part.LineSegment(Vector(-325, 68, 0), Vector(-325, -34, 0)),
    Part.LineSegment(Vector(-325, -34, 0), Vector(-274, -34, 0)),
    Part.LineSegment(Vector(-274, -34, 0), Vector(-274, 68, 0)),
    Part.LineSegment(Vector(-274, 68, 0), Vector(-325, 68, 0)),
    Part.LineSegment(Vector(-277, -31, 0), Vector(-322, -31, 0)),
    Part.LineSegment(Vector(-322, -31, 0), Vector(-322, 65, 0)),
    Part.LineSegment(Vector(-322, 65, 0), Vector(-277, 65, 0)),
    Part.LineSegment(Vector(-277, 65, 0), Vector(-277, -31, 0)),
], False)
sketch16.addConstraint([
    Sketcher.Constraint("Coincident", 0, 2, 1, 1),
    Sketcher.Constraint("Coincident", 1, 2, 2, 1),
    Sketcher.Constraint("Coincident", 2, 2, 3, 1),
    Sketcher.Constraint("Coincident", 3, 2, 0, 1),
    Sketcher.Constraint("Coincident", 4, 2, 5, 1),
    Sketcher.Constraint("Coincident", 5, 2, 6, 1),
    Sketcher.Constraint("Coincident", 6, 2, 7, 1),
    Sketcher.Constraint("Coincident", 7, 2, 4, 1),
    Sketcher.Constraint("Vertical", 0),
    Sketcher.Constraint("Horizontal", 1),
    Sketcher.Constraint("Vertical", 2),
    Sketcher.Constraint("Horizontal", 3),
    Sketcher.Constraint("Horizontal", 4),
    Sketcher.Constraint("Vertical", 5),
    Sketcher.Constraint("Horizontal", 6),
    Sketcher.Constraint("Vertical", 7),
    Sketcher.Constraint("DistanceX", 1, 1, 1, 2, Q("2 in")),
    Sketcher.Constraint("DistanceX", 4, 2, 4, 1, Q("1.76 in")),
    Sketcher.Constraint("DistanceX", 0, 2, 4, 2, Q("0.12 in")),
    Sketcher.Constraint("DistanceY", 0, 2, 4, 2, Q("0.12 in")),
    Sketcher.Constraint("DistanceY", 5, 2, 3, 2, Q("0.12 in")),
    Sketcher.Constraint("DistanceY", 0, 2, 0, 1, 101.599993),
    Sketcher.Constraint("DistanceX", 0, 2, -1, 1, 325.223731),
    Sketcher.Constraint("DistanceY", 0, 2, -1, 1, 33.570352),
])
pad10 = doc.addObject("PartDesign::Pad", "Pad009")
body10.addObject(pad10)
pad10.Profile = sketch16
pad10.Length = Q("32 in")

sketch17 = doc.addObject("Sketcher::SketchObject", "Sketch016")
body10.addObject(sketch17)
sketch17.AttachmentSupport = (doc.getObject("XY_Plane009"), [""])
sketch17.MapMode = "FlatFace"
sketch17.AttachmentOffset = App.Placement(Vector(0, 0, 68.029641), App.Rotation())
sketch17.addGeometry([
    Part.LineSegment(Vector(-274, -792, 0), Vector(-325, -813, 0)),
    Part.LineSegment(Vector(-325, -813, 0), Vector(-274, -813, 0)),
    Part.LineSegment(Vector(-274, -813, 0), Vector(-274, -792, 0)),
    Part.LineSegment(Vector(-274, 0, 0), Vector(-325, 0, 0)),
    Part.LineSegment(Vector(-325, 0, 0), Vector(-274, -51, 0)),
    Part.LineSegment(Vector(-274, -51, 0), Vector(-274, 0, 0)),
], False)
sketch17.addConstraint([
    Sketcher.Constraint("Coincident", 0, 2, 1, 1),
    Sketcher.Constraint("Coincident", 1, 2, 2, 1),
    Sketcher.Constraint("Coincident", 2, 2, 0, 1),
    Sketcher.Constraint("Coincident", 3, 2, 4, 1),
    Sketcher.Constraint("Coincident", 4, 2, 5, 1),
    Sketcher.Constraint("Coincident", 5, 2, 3, 1),
    Sketcher.Constraint("Horizontal", 1),
    Sketcher.Constraint("Vertical", 2),
    Sketcher.Constraint("Horizontal", 3),
    Sketcher.Constraint("Vertical", 5),
    Sketcher.Constraint("PointOnObject", 3, 2, -1),
    Sketcher.Constraint("Vertical", 0, 2, 3, 2),
    Sketcher.Constraint("Vertical", 2, 2, 4, 2),
    Sketcher.Constraint("Equal", 3, 5),
    Sketcher.Constraint("DistanceX", 1, 1, 1, 2, Q("2 in")),
    Sketcher.Constraint("DistanceY", 0, 2, -1, 1, Q("32 in")),
    Sketcher.Constraint("Angle", 0, Q("-157.5 deg")),
    Sketcher.Constraint("DistanceX", 0, 2, -1, 1, 325.223731),
])
pocket7 = doc.addObject("PartDesign::Pocket", "Pocket006")
body10.addObject(pocket7)
pocket7.Profile = sketch17
pocket7.Length = Q("4 in")

sketch18 = doc.addObject("Sketcher::SketchObject", "Sketch017")
body10.addObject(sketch18)
sketch18.AttachmentSupport = (doc.getObject("XY_Plane009"), [""])
sketch18.MapMode = "FlatFace"
sketch18.AttachmentOffset = App.Placement(Vector(0, 0, 68.029641), App.Rotation())
sketch18.addGeometry([
    Part.LineSegment(Vector(-325, 0, 0), Vector(-325, -27, 0)),
    Part.LineSegment(Vector(-325, -27, 0), Vector(-274, -78, 0)),
    Part.LineSegment(Vector(-274, -78, 0), Vector(-274, -51, 0)),
    Part.LineSegment(Vector(-274, -51, 0), Vector(-325, 0, 0)),
], False)
sketch18.addConstraint([
    Sketcher.Constraint("Coincident", 0, 2, 1, 1),
    Sketcher.Constraint("Coincident", 1, 2, 2, 1),
    Sketcher.Constraint("Coincident", 2, 2, 3, 1),
    Sketcher.Constraint("Coincident", 3, 2, 0, 1),
    Sketcher.Constraint("Vertical", 0),
    Sketcher.Constraint("Vertical", 2),
    Sketcher.Constraint("PointOnObject", 3, 2, -1),
    Sketcher.Constraint("Parallel", 1, 3),
    Sketcher.Constraint("DistanceY", 2, 2, -1, 1, Q("2 in")),
    Sketcher.Constraint("Angle", 1, Q("-45 deg")),
    Sketcher.Constraint("DistanceY", 0, 2, 0, 1, 26.940768),
    Sketcher.Constraint("DistanceX", 0, 2, -1, 1, 325.223731),
])
pocket8 = doc.addObject("PartDesign::Pocket", "Pocket007")
body10.addObject(pocket8)
pocket8.Profile = sketch18
pocket8.Length = Q("3 in")

doc.recompute()
